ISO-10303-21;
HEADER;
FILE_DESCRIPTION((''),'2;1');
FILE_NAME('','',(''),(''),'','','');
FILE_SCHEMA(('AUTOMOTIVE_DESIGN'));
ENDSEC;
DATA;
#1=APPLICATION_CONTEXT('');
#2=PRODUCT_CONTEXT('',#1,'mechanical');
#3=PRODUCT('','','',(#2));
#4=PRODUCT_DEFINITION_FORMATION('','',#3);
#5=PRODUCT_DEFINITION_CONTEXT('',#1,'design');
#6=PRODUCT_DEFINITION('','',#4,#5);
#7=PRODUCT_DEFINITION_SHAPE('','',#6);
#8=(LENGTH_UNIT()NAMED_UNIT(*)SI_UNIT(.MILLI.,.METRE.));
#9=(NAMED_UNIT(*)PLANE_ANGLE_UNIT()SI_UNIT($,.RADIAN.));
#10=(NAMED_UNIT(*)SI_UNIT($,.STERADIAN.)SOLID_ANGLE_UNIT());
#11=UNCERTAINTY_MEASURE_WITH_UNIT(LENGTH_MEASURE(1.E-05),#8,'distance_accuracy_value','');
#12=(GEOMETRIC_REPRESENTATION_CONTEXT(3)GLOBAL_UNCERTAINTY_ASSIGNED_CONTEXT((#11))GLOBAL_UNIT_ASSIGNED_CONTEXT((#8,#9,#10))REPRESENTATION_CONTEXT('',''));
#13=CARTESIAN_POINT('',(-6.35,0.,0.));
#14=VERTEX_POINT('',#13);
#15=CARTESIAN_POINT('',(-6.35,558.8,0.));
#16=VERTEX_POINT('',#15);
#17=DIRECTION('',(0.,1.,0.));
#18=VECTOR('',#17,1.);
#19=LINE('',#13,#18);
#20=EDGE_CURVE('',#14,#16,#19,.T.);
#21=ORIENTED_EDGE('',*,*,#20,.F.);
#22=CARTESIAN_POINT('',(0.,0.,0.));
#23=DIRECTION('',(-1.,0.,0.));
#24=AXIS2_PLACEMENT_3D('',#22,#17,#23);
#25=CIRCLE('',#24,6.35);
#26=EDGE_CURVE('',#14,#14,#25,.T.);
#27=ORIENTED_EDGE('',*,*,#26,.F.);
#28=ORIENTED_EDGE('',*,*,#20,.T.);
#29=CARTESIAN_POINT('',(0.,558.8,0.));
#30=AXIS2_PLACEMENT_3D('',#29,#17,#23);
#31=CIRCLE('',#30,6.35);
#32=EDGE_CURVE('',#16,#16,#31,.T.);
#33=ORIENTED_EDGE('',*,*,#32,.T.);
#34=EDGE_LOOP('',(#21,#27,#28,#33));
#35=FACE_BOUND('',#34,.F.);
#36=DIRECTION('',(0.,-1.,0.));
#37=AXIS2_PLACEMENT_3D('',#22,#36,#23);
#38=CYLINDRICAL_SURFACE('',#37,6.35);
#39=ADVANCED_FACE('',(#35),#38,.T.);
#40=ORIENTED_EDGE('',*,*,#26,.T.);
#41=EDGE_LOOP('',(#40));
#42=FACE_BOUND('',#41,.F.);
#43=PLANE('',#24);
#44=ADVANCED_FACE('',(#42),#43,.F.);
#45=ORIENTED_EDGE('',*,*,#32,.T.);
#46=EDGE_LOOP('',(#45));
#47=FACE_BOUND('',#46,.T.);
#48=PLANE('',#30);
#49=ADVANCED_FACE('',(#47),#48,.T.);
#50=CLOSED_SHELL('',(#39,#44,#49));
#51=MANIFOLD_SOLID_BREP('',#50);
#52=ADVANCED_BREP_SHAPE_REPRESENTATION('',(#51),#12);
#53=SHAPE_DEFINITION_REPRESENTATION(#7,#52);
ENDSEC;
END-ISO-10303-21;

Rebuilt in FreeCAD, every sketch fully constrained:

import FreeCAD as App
import Part
import Sketcher
Q = App.Units.Quantity

doc = App.newDocument("Part")
params = doc.addObject("Spreadsheet::Sheet", "Params")
for row, (alias, value) in enumerate([
    ("sketch1_diameter", "0.5 in"),
    ("pad1_length", "22 in"),
], start=1):
    params.set(f"A{row}", alias)
    params.set(f"B{row}", "=" + value)
    params.setAlias(f"B{row}", alias)

body = doc.addObject("PartDesign::Body", "Body")

# Sketch on XZ plane
sketch1 = body.newObject("Sketcher::SketchObject", "Sketch")
sketch1.AttachmentSupport = (doc.getObject("XZ_Plane"), [""])
sketch1.MapMode = "FlatFace"
sketch1.addGeometry(Part.Circle(App.Vector(0, 0, 0), App.Vector(0, 0, 1), 6.35), False)
sketch1.addConstraint([
    Sketcher.Constraint("Coincident", 0, 3, -1, 1),
    Sketcher.Constraint("Diameter", 0, Q("0.5 in")),
])
sketch1.setExpression("Constraints[1]", "Params.sketch1_diameter")
pad1 = body.newObject("PartDesign::Pad", "Pad")
pad1.Profile = sketch1
pad1.setExpression("Length", "Params.pad1_length")
pad1.Reversed = True

doc.recompute()
